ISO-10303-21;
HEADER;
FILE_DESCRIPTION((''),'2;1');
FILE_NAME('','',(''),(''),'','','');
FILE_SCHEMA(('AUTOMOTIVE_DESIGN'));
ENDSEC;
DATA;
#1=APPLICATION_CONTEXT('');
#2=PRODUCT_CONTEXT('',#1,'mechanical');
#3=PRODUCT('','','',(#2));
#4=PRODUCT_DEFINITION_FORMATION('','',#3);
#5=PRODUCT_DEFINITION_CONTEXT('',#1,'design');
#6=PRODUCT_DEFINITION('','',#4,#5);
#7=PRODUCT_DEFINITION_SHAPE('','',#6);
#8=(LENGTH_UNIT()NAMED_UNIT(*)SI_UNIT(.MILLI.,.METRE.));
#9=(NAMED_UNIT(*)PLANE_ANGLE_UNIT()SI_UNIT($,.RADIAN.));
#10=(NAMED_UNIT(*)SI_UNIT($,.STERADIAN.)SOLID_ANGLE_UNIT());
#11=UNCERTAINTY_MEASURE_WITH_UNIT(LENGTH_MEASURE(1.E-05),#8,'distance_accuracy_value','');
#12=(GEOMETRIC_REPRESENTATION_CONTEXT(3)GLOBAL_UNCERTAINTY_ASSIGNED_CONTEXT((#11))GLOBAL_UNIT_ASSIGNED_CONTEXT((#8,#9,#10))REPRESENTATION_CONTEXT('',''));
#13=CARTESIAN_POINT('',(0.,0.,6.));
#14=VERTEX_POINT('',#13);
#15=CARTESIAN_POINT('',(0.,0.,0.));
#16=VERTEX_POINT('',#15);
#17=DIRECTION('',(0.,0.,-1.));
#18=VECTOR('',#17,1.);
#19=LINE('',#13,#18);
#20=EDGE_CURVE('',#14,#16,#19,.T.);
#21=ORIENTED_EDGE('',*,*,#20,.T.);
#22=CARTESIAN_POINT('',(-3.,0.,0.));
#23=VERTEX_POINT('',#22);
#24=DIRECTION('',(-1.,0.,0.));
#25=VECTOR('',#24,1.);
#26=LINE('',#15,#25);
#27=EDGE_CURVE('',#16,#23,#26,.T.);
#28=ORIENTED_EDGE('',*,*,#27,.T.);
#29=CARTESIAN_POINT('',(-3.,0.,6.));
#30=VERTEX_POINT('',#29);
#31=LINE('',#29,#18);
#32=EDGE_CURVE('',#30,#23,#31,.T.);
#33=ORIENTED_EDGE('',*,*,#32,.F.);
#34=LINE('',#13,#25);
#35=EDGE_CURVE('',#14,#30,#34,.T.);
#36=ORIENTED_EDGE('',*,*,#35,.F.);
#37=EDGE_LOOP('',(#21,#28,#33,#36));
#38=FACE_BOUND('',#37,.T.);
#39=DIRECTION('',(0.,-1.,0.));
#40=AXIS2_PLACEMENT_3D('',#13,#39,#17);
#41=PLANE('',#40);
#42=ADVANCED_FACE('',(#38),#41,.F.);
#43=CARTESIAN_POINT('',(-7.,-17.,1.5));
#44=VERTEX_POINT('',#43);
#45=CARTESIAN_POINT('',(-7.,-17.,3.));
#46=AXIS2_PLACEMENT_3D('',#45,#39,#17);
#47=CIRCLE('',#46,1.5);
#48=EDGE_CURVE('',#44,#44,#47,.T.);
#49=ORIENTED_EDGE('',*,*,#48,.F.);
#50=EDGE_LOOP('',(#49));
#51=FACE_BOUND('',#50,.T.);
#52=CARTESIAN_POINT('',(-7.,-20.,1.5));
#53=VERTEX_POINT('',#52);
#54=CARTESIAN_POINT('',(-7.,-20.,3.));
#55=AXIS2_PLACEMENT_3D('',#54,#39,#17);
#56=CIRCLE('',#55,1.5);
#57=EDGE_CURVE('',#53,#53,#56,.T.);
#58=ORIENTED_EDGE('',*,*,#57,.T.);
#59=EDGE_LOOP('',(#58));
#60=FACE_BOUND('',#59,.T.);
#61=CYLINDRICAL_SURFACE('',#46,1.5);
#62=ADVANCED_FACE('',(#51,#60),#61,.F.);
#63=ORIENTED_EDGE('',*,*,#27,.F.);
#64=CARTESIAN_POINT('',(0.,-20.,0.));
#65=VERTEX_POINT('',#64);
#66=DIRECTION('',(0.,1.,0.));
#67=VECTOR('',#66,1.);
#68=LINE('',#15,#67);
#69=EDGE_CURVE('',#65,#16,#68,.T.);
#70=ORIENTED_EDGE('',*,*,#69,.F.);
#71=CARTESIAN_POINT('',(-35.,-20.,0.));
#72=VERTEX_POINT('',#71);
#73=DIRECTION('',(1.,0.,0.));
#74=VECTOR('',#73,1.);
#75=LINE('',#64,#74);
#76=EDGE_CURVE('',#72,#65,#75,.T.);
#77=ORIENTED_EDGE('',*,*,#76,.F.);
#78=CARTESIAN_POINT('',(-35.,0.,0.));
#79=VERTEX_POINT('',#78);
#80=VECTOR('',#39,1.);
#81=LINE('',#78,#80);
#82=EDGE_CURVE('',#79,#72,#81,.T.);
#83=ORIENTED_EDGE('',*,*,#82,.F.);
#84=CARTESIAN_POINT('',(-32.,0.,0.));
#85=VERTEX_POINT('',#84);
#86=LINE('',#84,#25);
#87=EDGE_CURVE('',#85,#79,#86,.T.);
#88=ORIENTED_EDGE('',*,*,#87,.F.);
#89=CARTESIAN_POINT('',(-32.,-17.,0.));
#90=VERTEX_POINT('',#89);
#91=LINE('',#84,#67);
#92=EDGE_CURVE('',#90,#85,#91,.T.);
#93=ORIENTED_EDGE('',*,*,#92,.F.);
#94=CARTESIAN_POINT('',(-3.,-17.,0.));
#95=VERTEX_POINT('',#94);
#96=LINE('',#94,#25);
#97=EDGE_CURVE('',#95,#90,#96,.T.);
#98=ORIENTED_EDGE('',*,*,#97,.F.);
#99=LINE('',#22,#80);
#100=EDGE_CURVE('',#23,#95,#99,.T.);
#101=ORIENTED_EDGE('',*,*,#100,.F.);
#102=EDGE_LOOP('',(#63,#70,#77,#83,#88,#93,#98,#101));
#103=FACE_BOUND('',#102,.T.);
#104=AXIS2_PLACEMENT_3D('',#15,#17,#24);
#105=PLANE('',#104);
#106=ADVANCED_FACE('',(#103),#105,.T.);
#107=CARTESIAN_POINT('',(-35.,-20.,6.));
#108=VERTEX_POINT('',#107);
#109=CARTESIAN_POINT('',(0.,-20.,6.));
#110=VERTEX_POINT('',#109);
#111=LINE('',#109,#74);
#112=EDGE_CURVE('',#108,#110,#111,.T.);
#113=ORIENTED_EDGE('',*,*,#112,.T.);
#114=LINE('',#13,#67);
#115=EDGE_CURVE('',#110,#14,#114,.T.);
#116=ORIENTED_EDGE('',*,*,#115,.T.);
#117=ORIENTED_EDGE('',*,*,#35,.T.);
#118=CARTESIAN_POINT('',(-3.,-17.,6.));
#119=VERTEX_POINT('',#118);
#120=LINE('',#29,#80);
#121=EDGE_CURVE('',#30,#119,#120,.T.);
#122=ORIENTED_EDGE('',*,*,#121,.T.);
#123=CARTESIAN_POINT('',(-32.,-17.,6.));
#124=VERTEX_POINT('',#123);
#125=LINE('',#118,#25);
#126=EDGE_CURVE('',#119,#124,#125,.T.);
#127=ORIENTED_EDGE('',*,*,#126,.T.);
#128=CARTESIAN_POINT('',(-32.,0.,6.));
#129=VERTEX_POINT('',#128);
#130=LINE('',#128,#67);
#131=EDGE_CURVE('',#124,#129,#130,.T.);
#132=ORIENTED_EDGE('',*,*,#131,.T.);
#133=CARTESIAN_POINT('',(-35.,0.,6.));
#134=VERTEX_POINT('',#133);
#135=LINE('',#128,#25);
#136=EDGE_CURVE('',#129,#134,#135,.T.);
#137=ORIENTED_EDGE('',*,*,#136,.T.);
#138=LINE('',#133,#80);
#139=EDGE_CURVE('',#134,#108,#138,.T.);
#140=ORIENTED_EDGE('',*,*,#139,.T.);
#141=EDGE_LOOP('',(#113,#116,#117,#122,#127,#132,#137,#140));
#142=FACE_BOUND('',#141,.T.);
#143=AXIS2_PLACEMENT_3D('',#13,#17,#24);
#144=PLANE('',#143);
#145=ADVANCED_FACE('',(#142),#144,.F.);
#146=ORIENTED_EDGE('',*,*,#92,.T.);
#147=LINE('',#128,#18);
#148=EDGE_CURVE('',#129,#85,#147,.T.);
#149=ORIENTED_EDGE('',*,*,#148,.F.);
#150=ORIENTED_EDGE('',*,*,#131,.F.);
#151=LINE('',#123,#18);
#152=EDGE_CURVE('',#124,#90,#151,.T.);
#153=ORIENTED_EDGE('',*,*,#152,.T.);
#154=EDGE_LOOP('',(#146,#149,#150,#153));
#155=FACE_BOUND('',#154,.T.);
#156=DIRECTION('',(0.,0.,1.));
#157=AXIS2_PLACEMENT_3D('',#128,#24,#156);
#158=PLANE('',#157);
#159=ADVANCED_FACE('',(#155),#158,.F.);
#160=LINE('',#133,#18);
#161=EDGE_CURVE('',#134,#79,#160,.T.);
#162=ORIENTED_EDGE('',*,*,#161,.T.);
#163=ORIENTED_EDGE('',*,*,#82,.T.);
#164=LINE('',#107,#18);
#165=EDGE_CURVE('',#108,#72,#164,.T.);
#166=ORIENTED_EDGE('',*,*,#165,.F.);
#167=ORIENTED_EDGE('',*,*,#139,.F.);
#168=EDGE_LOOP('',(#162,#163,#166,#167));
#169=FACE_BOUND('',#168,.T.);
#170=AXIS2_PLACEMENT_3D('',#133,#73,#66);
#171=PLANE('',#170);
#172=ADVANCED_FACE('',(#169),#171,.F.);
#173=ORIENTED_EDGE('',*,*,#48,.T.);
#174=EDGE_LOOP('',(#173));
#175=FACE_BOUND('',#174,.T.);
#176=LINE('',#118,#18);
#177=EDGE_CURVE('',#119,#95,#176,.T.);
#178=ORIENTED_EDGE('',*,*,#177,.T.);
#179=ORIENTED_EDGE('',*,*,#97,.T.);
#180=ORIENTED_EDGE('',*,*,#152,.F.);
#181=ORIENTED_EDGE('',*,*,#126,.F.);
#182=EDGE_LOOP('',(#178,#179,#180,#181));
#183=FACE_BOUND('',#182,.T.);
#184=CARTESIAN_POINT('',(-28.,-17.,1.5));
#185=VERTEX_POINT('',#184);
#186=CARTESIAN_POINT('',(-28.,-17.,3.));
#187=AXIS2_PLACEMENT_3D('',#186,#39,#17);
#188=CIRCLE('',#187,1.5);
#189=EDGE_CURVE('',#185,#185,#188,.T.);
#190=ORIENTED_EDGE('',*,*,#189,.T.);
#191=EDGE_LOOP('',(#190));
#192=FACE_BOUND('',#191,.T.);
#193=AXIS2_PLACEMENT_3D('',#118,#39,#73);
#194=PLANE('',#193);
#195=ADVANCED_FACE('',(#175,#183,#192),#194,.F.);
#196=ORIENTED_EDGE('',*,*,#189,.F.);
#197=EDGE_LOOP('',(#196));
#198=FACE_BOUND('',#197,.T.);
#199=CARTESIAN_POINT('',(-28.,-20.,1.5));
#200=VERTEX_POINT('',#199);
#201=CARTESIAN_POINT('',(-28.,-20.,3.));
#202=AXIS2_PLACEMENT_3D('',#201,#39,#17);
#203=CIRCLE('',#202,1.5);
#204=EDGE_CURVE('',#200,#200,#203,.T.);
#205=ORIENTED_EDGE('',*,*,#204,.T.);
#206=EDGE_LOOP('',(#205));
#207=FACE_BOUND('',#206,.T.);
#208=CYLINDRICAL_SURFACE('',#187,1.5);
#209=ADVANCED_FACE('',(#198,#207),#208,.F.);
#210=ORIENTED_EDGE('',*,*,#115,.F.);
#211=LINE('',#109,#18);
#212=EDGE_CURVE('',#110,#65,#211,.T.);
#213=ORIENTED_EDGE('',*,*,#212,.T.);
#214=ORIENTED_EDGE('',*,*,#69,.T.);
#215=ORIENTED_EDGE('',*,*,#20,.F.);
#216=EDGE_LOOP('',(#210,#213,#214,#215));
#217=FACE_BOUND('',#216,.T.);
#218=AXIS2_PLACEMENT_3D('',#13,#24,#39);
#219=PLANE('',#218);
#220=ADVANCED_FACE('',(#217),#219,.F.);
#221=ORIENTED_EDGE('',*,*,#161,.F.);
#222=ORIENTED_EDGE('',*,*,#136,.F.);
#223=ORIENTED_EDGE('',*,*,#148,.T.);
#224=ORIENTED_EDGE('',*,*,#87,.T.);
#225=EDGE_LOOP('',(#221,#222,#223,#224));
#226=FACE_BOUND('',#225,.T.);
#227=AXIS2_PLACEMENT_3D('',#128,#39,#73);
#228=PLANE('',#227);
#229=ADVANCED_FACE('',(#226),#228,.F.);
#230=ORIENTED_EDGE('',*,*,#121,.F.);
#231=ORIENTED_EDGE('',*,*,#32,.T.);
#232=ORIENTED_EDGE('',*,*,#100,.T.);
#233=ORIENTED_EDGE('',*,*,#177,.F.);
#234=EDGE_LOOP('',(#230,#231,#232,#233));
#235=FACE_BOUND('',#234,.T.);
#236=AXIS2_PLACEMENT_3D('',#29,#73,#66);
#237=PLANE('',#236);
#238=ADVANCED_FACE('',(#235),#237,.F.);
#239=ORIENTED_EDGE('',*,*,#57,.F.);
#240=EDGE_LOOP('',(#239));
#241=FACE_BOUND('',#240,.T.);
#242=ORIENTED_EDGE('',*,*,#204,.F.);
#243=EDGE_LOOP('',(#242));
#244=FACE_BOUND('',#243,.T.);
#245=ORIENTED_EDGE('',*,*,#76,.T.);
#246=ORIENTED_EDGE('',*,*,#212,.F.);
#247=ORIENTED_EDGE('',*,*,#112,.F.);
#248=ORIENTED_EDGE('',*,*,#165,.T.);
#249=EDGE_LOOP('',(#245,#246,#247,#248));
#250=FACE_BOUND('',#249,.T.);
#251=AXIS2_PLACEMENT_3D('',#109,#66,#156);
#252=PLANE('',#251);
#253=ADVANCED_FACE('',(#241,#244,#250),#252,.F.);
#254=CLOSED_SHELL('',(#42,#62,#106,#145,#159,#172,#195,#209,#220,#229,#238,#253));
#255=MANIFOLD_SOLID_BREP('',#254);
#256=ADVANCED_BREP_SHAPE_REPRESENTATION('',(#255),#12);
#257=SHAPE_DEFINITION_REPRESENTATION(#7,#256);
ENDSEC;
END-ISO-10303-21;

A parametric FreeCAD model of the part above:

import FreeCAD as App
import Part
import Sketcher
Q = App.Units.Quantity

doc = App.newDocument("Part")
params = doc.addObject("Spreadsheet::Sheet", "Params")
for row, (alias, value) in enumerate([
    ("sketch1_width", "3 mm"),
    ("sketch1_width2", "35 mm"),
    ("sketch1_height", "20 mm"),
    ("sketch1_height2", "17 mm"),
    ("pad1_length", "6 mm"),
    ("sketch2_diameter", "3 mm"),
    ("pocket1_length", "3 mm"),
], start=1):
    params.set(f"A{row}", alias)
    params.set(f"B{row}", "=" + value)
    params.setAlias(f"B{row}", alias)

body = doc.addObject("PartDesign::Body", "Body")

sketch1 = body.newObject("Sketcher::SketchObject", "Sketch")
sketch1.AttachmentSupport = (doc.getObject("XY_Plane"), [""])
sketch1.MapMode = "FlatFace"
sketch1.addGeometry([
    Part.LineSegment(App.Vector(-32, 0, 0), App.Vector(-35, 0, 0)),
    Part.LineSegment(App.Vector(-35, 0, 0), App.Vector(-35, -20, 0)),
    Part.LineSegment(App.Vector(-35, -20, 0), App.Vector(0, -20, 0)),
    Part.LineSegment(App.Vector(0, -20, 0), App.Vector(0, 0, 0)),
    Part.LineSegment(App.Vector(0, 0, 0), App.Vector(-3, 0, 0)),
    Part.LineSegment(App.Vector(-3, 0, 0), App.Vector(-3, -17, 0)),
    Part.LineSegment(App.Vector(-3, -17, 0), App.Vector(-32, -17, 0)),
    Part.LineSegment(App.Vector(-32, -17, 0), App.Vector(-32, 0, 0)),
], False)
sketch1.addConstraint([
    Sketcher.Constraint("Coincident", 0, 2, 1, 1),
    Sketcher.Constraint("Coincident", 1, 2, 2, 1),
    Sketcher.Constraint("Coincident", 2, 2, 3, 1),
    Sketcher.Constraint("Coincident", 3, 2, 4, 1),
    Sketcher.Constraint("Coincident", 4, 2, 5, 1),
    Sketcher.Constraint("Coincident", 5, 2, 6, 1),
    Sketcher.Constraint("Coincident", 6, 2, 7, 1),
    Sketcher.Constraint("Coincident", 7, 2, 0, 1),
    Sketcher.Constraint("Horizontal", 0),
    Sketcher.Constraint("Vertical", 1),
    Sketcher.Constraint("Horizontal", 2),
    Sketcher.Constraint("Vertical", 3),
    Sketcher.Constraint("Horizontal", 4),
    Sketcher.Constraint("Vertical", 5),
    Sketcher.Constraint("Horizontal", 6),
    Sketcher.Constraint("Vertical", 7),
    Sketcher.Constraint("Coincident", 3, 2, -1, 1),
    Sketcher.Constraint("PointOnObject", 0, 2, -1),
    Sketcher.Constraint("Equal", 0, 4),
    Sketcher.Constraint("DistanceX", 0, 2, 0, 1, Q("3 mm")),
    Sketcher.Constraint("DistanceX", 2, 1, 2, 2, Q("35 mm")),
    Sketcher.Constraint("DistanceY", 1, 2, 1, 1, Q("20 mm")),
    Sketcher.Constraint("DistanceY", 5, 2, 5, 1, Q("17 mm")),
])
sketch1.setExpression("Constraints[19]", "Params.sketch1_width")
sketch1.setExpression("Constraints[20]", "Params.sketch1_width2")
sketch1.setExpression("Constraints[21]", "Params.sketch1_height")
sketch1.setExpression("Constraints[22]", "Params.sketch1_height2")
pad1 = body.newObject("PartDesign::Pad", "Pad")
pad1.Profile = sketch1
pad1.setExpression("Length", "Params.pad1_length")

sketch2 = body.newObject("Sketcher::SketchObject", "Sketch001")
sketch2.AttachmentSupport = (doc.getObject("XZ_Plane"), [""])
sketch2.MapMode = "FlatFace"
sketch2.AttachmentOffset = App.Placement(App.Vector(0, 0, 20), App.Rotation())
sketch2.addGeometry([
    Part.Circle(App.Vector(-28, 3, 0), App.Vector(0, 0, 1), 1.5),
    Part.Circle(App.Vector(-7, 3, 0), App.Vector(0, 0, 1), 1.5),
], False)
sketch2.addConstraint([
    Sketcher.Constraint("Equal", 0, 1),
    Sketcher.Constraint("Horizontal", 0, 3, 1, 3),
    Sketcher.Constraint("Diameter", 0, Q("3 mm")),
    Sketcher.Constraint("DistanceX", 0, 3, -1, 1, Q("28 mm")),
    Sketcher.Constraint("DistanceY", -1, 1, 0, 3, Q("3 mm")),
    Sketcher.Constraint("DistanceX", 1, 3, -1, 1, Q("7 mm")),
])
sketch2.setExpression("Constraints[2]", "Params.sketch2_diameter")
pocket1 = body.newObject("PartDesign::Pocket", "Pocket")
pocket1.Profile = sketch2
pocket1.setExpression("Length", "Params.pocket1_length")

doc.recompute()
